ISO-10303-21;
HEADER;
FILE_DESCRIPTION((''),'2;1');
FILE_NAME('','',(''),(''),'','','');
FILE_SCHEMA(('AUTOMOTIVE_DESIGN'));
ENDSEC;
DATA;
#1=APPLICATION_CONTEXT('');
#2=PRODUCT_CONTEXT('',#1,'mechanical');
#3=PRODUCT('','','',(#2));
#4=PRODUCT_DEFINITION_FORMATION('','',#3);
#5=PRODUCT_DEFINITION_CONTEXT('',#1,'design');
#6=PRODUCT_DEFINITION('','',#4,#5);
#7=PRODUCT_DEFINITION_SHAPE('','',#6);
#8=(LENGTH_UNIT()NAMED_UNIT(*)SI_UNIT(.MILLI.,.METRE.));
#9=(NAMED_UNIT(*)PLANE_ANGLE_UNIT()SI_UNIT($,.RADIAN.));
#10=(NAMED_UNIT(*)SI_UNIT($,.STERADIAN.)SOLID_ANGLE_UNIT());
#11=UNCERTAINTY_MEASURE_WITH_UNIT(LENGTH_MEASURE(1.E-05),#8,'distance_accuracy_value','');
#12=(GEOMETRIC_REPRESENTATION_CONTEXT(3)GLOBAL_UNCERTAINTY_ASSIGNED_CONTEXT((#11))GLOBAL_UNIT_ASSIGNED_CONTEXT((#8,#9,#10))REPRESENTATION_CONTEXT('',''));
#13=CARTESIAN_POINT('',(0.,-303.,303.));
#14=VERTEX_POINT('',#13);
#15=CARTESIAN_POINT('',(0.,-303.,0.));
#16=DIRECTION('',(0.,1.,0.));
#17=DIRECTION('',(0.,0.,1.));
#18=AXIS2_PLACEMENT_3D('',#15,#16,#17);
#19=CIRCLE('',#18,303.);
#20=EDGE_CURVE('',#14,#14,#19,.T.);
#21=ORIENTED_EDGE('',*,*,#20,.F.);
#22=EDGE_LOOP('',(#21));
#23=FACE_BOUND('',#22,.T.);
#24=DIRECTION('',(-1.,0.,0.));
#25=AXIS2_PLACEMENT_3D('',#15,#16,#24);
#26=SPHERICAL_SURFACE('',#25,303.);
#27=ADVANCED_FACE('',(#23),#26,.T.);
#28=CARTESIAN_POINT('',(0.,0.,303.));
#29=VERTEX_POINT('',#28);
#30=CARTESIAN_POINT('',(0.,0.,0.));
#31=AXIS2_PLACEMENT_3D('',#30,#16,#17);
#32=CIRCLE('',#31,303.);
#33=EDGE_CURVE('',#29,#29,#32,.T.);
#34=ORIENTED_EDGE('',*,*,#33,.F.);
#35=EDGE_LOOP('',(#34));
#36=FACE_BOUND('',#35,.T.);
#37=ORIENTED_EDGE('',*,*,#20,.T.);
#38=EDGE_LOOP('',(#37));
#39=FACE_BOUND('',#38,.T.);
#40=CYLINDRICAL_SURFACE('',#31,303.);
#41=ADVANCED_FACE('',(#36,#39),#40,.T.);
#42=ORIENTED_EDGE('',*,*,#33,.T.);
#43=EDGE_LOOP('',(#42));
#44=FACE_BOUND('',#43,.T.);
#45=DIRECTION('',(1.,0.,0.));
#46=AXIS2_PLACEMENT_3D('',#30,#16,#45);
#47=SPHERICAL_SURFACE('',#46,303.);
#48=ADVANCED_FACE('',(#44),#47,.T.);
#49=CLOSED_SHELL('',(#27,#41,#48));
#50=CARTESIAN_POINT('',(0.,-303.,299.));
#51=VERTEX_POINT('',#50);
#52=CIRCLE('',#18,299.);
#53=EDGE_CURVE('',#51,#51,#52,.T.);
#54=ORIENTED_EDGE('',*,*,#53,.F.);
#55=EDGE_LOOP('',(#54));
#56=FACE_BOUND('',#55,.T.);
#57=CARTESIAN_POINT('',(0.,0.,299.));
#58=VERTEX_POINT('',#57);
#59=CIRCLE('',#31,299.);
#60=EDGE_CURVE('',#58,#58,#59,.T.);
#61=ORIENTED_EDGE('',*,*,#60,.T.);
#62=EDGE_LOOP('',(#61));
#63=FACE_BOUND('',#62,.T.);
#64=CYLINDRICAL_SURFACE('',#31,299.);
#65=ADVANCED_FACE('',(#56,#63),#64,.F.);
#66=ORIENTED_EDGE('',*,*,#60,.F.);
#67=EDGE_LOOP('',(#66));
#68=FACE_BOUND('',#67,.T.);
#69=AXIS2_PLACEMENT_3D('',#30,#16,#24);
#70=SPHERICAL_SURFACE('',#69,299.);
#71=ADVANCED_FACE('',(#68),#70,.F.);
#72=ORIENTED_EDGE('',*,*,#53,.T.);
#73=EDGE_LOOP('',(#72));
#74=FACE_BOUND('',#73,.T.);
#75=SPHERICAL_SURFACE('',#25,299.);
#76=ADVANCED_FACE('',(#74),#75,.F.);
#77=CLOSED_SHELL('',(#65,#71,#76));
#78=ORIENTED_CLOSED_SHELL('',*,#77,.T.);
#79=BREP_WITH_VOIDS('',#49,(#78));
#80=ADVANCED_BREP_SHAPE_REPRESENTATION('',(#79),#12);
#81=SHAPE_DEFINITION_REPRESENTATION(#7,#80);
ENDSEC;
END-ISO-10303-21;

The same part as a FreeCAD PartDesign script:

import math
import FreeCAD as App
import Part
import Sketcher
from FreeCAD import Vector

doc = App.newDocument("Part")
body = doc.addObject("PartDesign::Body", "Body")

sketch1 = body.newObject("Sketcher::SketchObject", "Sketch")
sketch1.AttachmentSupport = (doc.getObject("XY_Plane"), [""])
sketch1.MapMode = "FlatFace"
sketch1.addGeometry([
    Part.LineSegment(Vector(-303, 0, 0), Vector(-303, -303, 0)),
    Part.ArcOfCircle(Part.Circle(Vector(0, -303, 0), Vector(0, 0, 1), 303), math.radians(180), math.radians(270)),
    Part.LineSegment(Vector(0, -606, 0), Vector(0, -602, 0)),
    Part.ArcOfCircle(Part.Circle(Vector(0, -303, 0), Vector(0, 0, 1), 299), math.radians(180), math.radians(270)),
    Part.LineSegment(Vector(-299, -303, 0), Vector(-299, 0, 0)),
    Part.ArcOfCircle(Part.Circle(Vector(0, 0, 0), Vector(0, 0, 1), 299), math.radians(90), math.radians(180)),
    Part.LineSegment(Vector(0, 299, 0), Vector(0, 303, 0)),
    Part.ArcOfCircle(Part.Circle(Vector(0, 0, 0), Vector(0, 0, 1), 303), math.radians(90), math.radians(180)),
], False)
sketch1.addConstraint([
    Sketcher.Constraint("Tangent", 0, 2, 1, 1),
    Sketcher.Constraint("Coincident", 1, 2, 2, 1),
    Sketcher.Constraint("Coincident", 2, 2, 3, 2),
    Sketcher.Constraint("Tangent", 3, 1, 4, 1),
    Sketcher.Constraint("Tangent", 4, 2, 5, 2),
    Sketcher.Constraint("Coincident", 5, 1, 6, 1),
    Sketcher.Constraint("Coincident", 6, 2, 7, 1),
    Sketcher.Constraint("Tangent", 7, 2, 0, 1),
    Sketcher.Constraint("Vertical", 0),
    Sketcher.Constraint("Vertical", 2),
    Sketcher.Constraint("Vertical", 4),
    Sketcher.Constraint("Vertical", 6),
    Sketcher.Constraint("Coincident", 5, 3, -1, 1),
    Sketcher.Constraint("Coincident", 7, 3, -1, 1),
    Sketcher.Constraint("Coincident", 3, 3, 1, 3),
    Sketcher.Constraint("Equal", 3, 5),
    Sketcher.Constraint("PointOnObject", 1, 2, -2),
    Sketcher.Constraint("PointOnObject", 5, 1, -2),
    Sketcher.Constraint("Radius", 1, 303.0),
    Sketcher.Constraint("Radius", 3, 299.0),
    Sketcher.Constraint("DistanceY", 0, 2, 0, 1, 303.0),
])
revolution = body.newObject("PartDesign::Revolution", "Revolution")
revolution.Profile = sketch1
revolution.ReferenceAxis = (sketch1, ["V_Axis"])
revolution.Angle = 360

doc.recompute()
